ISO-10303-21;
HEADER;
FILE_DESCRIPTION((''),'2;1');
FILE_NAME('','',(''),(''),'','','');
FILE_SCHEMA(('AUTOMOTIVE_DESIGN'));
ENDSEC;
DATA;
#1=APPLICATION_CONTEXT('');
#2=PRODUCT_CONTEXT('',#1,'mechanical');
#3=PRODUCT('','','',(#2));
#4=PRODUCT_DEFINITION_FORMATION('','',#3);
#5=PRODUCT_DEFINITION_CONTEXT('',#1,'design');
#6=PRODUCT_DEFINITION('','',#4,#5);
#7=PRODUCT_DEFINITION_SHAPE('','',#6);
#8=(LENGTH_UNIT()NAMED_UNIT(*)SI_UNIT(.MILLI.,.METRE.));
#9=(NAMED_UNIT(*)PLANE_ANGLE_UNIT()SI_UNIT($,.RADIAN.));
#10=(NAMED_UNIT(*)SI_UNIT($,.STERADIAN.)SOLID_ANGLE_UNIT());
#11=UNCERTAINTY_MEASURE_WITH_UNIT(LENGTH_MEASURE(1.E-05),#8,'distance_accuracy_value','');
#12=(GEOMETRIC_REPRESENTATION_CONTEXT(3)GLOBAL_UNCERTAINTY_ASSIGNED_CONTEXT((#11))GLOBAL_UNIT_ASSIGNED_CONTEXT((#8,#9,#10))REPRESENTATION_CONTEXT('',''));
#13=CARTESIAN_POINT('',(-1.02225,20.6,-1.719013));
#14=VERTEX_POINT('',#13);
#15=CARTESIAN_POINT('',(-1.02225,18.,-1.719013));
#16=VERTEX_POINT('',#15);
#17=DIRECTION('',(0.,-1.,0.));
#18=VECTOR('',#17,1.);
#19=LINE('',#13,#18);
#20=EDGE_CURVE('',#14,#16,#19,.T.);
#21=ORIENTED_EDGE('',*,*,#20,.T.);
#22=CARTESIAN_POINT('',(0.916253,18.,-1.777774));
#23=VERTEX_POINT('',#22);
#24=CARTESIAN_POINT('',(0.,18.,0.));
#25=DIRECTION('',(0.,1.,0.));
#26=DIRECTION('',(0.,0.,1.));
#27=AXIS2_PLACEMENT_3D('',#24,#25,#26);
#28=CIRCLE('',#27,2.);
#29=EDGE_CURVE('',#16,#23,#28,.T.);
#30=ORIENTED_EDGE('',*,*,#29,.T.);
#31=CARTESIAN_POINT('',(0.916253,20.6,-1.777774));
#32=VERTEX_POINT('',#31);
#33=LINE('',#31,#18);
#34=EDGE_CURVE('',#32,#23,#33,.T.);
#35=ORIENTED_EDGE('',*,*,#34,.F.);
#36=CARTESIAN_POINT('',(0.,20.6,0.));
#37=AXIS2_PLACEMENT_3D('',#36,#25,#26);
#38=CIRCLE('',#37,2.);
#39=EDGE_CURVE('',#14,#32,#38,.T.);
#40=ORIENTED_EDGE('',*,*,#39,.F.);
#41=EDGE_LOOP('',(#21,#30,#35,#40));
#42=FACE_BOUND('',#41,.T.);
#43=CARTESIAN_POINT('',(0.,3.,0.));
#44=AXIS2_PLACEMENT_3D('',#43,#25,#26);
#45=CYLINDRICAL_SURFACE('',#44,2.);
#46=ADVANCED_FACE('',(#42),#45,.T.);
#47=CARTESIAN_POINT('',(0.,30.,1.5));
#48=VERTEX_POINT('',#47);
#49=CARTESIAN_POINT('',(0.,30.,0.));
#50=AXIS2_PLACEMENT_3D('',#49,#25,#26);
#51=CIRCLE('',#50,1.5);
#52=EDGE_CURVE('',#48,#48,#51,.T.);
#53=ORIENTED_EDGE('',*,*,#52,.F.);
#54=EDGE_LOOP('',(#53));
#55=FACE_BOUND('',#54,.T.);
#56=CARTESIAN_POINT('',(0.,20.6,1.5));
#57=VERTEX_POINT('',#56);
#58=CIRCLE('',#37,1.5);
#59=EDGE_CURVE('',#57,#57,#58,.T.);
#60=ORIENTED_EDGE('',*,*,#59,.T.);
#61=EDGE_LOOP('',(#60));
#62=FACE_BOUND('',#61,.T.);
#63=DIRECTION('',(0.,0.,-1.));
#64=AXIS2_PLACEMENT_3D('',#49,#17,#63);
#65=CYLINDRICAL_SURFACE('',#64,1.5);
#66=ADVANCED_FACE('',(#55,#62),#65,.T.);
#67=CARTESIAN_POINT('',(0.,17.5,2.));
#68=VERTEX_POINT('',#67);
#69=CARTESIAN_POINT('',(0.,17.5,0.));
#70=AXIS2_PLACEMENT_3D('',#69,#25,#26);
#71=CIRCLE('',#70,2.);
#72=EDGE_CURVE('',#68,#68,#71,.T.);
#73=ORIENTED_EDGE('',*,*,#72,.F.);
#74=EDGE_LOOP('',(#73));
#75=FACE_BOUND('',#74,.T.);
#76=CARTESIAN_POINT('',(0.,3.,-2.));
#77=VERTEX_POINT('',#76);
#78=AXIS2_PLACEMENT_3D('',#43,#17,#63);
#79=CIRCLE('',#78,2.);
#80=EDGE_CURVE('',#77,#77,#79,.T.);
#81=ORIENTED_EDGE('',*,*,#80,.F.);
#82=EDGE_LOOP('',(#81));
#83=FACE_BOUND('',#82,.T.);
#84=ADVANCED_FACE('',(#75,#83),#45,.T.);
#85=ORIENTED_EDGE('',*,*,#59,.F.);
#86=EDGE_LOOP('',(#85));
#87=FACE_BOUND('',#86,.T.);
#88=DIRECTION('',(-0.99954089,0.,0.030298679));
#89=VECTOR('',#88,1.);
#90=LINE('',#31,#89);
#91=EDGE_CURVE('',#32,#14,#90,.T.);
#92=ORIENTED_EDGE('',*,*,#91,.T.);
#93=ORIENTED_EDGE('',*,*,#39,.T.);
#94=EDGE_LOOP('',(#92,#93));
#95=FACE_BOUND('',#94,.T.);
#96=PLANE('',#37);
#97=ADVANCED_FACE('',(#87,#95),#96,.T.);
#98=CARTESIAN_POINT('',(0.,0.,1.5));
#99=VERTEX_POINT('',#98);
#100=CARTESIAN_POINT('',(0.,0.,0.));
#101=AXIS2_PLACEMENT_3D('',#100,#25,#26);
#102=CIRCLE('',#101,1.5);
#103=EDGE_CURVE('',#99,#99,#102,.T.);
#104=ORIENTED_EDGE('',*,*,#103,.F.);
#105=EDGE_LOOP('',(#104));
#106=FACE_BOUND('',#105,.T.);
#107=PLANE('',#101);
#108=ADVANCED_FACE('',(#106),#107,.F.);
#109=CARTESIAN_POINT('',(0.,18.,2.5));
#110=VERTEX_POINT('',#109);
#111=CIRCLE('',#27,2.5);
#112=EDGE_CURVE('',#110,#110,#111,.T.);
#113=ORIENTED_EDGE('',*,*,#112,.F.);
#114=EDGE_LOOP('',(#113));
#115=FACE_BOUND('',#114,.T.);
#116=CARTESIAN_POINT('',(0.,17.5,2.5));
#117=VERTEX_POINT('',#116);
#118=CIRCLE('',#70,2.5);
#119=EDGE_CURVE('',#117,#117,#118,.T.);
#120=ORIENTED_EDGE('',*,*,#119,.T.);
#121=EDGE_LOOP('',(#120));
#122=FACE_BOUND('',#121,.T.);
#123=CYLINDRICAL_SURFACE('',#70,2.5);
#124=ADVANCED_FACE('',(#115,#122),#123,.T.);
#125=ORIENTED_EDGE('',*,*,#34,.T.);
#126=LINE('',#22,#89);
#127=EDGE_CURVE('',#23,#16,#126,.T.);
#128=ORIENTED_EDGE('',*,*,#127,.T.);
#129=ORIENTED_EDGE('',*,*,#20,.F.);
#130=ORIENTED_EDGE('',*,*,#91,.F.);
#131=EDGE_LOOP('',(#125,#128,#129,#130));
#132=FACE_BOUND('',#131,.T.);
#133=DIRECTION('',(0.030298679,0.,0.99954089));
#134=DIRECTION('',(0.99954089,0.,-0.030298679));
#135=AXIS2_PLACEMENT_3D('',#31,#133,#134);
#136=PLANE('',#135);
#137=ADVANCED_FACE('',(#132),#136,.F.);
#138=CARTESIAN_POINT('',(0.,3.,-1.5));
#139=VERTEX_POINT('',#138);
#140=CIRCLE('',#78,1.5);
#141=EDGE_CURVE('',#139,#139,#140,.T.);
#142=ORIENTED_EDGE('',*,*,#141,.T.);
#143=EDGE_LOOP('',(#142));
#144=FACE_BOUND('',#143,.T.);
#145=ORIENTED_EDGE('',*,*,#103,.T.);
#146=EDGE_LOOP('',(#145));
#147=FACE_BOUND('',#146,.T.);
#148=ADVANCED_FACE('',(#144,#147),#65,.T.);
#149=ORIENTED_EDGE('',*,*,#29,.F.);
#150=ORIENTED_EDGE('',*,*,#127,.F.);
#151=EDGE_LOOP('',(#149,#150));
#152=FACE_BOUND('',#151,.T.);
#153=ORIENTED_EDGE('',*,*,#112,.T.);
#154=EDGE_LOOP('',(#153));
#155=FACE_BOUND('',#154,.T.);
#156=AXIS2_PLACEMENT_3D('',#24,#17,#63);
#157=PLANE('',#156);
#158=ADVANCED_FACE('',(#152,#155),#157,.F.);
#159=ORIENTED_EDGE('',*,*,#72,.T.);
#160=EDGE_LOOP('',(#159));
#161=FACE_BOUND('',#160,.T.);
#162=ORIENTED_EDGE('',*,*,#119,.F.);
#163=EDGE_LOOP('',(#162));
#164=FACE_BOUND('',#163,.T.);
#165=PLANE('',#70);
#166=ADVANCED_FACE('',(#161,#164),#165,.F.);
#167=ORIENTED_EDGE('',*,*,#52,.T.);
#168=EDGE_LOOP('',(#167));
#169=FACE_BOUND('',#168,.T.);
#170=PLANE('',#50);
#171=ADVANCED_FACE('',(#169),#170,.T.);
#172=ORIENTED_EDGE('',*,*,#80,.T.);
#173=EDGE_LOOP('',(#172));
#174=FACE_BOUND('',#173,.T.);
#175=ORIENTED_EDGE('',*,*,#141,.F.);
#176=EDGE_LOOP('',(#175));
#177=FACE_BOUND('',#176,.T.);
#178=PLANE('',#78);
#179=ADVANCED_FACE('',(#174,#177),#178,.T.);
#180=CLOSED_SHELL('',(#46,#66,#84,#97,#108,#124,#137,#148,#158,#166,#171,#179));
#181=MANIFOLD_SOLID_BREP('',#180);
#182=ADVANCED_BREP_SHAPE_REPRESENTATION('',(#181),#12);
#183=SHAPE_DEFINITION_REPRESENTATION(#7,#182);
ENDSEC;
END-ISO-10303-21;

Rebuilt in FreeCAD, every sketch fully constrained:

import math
import FreeCAD as App
import Part
import Sketcher

V = App.Vector

doc = App.newDocument("Part")
body = doc.addObject("PartDesign::Body", "Body")

# Sketch on XZ plane
sketch1 = doc.addObject("Sketcher::SketchObject", "Sketch")
body.addObject(sketch1)
sketch1.AttachmentSupport = (doc.XZ_Plane, [""])
sketch1.MapMode = "FlatFace"
sketch1.addGeometry(Part.Circle(V(0, 0, 0), V(0, 0, 1), 1.5), False)
sketch1.addConstraint(Sketcher.Constraint("Coincident", 0, 3, -1, 1))
sketch1.addConstraint(Sketcher.Constraint("Diameter", 0, 3.0))
pad1 = doc.addObject("PartDesign::Pad", "Pad")
body.addObject(pad1)
pad1.Profile = sketch1
pad1.Length = 30
pad1.Reversed = True

# Sketch on XZ plane
sketch2 = doc.addObject("Sketcher::SketchObject", "Sketch001")
body.addObject(sketch2)
sketch2.AttachmentSupport = (doc.XZ_Plane, [""])
sketch2.MapMode = "FlatFace"
sketch2.AttachmentOffset = App.Placement(V(0, 0, -3), App.Rotation())
sketch2.addGeometry(Part.Circle(V(0, 0, 0), V(0, 0, 1), 2), False)
sketch2.addGeometry(Part.Circle(V(0, 0, 0), V(0, 0, 1), 1.5), False)
sketch2.addConstraint(Sketcher.Constraint("Coincident", 0, 3, -1, 1))
sketch2.addConstraint(Sketcher.Constraint("Coincident", 1, 3, -1, 1))
sketch2.addConstraint(Sketcher.Constraint("Diameter", 0, 4.0))
sketch2.addConstraint(Sketcher.Constraint("Diameter", 1, 3.0))
pad2 = doc.addObject("PartDesign::Pad", "Pad001")
body.addObject(pad2)
pad2.Profile = sketch2
pad2.Length = 15
pad2.Reversed = True

# Sketch on XZ plane
sketch3 = doc.addObject("Sketcher::SketchObject", "Sketch002")
body.addObject(sketch3)
sketch3.AttachmentSupport = (doc.XZ_Plane, [""])
sketch3.MapMode = "FlatFace"
sketch3.AttachmentOffset = App.Placement(V(0, 0, -18), App.Rotation())
sketch3.addGeometry(Part.LineSegment(V(0.916253, -1.777774, 0), V(-1.02225, -1.719013, 0)), False)
sketch3.addGeometry(Part.ArcOfCircle(Part.Circle(V(0, 0, 0), V(0, 0, 1), 2), math.radians(-62.73372), math.radians(239.261215)), False)
sketch3.addGeometry(Part.Circle(V(0, 0, 0), V(0, 0, 1), 1.5), False)
sketch3.addConstraint(Sketcher.Constraint("Coincident", 0, 1, 1, 1))
sketch3.addConstraint(Sketcher.Constraint("Coincident", 1, 2, 0, 2))
sketch3.addConstraint(Sketcher.Constraint("Coincident", 1, 3, -1, 1))
sketch3.addConstraint(Sketcher.Constraint("Coincident", 2, 3, -1, 1))
sketch3.addConstraint(Sketcher.Constraint("Diameter", 2, 3.0))
sketch3.addConstraint(Sketcher.Constraint("Radius", 1, 2.0))
sketch3.addConstraint(Sketcher.Constraint("DistanceX", 1, 2, -1, 1, 1.02225))
sketch3.addConstraint(Sketcher.Constraint("DistanceY", 0, 1, 1, 2, 0.058761))
pad3 = doc.addObject("PartDesign::Pad", "Pad002")
body.addObject(pad3)
pad3.Profile = sketch3
pad3.Length = 2.6
pad3.Reversed = True

# Sketch on XZ plane
sketch4 = doc.addObject("Sketcher::SketchObject", "Sketch003")
body.addObject(sketch4)
sketch4.AttachmentSupport = (doc.XZ_Plane, [""])
sketch4.MapMode = "FlatFace"
sketch4.AttachmentOffset = App.Placement(V(0, 0, -17.5), App.Rotation())
sketch4.addGeometry(Part.Circle(V(0, 0, 0), V(0, 0, 1), 2.5), False)
sketch4.addGeometry(Part.Circle(V(0, 0, 0), V(0, 0, 1), 2), False)
sketch4.addConstraint(Sketcher.Constraint("Coincident", 0, 3, -1, 1))
sketch4.addConstraint(Sketcher.Constraint("Coincident", 1, 3, -1, 1))
sketch4.addConstraint(Sketcher.Constraint("Diameter", 0, 5.0))
sketch4.addConstraint(Sketcher.Constraint("Diameter", 1, 4.0))
pad4 = doc.addObject("PartDesign::Pad", "Pad003")
body.addObject(pad4)
pad4.Profile = sketch4
pad4.Length = 0.5
pad4.Reversed = True

doc.recompute()
